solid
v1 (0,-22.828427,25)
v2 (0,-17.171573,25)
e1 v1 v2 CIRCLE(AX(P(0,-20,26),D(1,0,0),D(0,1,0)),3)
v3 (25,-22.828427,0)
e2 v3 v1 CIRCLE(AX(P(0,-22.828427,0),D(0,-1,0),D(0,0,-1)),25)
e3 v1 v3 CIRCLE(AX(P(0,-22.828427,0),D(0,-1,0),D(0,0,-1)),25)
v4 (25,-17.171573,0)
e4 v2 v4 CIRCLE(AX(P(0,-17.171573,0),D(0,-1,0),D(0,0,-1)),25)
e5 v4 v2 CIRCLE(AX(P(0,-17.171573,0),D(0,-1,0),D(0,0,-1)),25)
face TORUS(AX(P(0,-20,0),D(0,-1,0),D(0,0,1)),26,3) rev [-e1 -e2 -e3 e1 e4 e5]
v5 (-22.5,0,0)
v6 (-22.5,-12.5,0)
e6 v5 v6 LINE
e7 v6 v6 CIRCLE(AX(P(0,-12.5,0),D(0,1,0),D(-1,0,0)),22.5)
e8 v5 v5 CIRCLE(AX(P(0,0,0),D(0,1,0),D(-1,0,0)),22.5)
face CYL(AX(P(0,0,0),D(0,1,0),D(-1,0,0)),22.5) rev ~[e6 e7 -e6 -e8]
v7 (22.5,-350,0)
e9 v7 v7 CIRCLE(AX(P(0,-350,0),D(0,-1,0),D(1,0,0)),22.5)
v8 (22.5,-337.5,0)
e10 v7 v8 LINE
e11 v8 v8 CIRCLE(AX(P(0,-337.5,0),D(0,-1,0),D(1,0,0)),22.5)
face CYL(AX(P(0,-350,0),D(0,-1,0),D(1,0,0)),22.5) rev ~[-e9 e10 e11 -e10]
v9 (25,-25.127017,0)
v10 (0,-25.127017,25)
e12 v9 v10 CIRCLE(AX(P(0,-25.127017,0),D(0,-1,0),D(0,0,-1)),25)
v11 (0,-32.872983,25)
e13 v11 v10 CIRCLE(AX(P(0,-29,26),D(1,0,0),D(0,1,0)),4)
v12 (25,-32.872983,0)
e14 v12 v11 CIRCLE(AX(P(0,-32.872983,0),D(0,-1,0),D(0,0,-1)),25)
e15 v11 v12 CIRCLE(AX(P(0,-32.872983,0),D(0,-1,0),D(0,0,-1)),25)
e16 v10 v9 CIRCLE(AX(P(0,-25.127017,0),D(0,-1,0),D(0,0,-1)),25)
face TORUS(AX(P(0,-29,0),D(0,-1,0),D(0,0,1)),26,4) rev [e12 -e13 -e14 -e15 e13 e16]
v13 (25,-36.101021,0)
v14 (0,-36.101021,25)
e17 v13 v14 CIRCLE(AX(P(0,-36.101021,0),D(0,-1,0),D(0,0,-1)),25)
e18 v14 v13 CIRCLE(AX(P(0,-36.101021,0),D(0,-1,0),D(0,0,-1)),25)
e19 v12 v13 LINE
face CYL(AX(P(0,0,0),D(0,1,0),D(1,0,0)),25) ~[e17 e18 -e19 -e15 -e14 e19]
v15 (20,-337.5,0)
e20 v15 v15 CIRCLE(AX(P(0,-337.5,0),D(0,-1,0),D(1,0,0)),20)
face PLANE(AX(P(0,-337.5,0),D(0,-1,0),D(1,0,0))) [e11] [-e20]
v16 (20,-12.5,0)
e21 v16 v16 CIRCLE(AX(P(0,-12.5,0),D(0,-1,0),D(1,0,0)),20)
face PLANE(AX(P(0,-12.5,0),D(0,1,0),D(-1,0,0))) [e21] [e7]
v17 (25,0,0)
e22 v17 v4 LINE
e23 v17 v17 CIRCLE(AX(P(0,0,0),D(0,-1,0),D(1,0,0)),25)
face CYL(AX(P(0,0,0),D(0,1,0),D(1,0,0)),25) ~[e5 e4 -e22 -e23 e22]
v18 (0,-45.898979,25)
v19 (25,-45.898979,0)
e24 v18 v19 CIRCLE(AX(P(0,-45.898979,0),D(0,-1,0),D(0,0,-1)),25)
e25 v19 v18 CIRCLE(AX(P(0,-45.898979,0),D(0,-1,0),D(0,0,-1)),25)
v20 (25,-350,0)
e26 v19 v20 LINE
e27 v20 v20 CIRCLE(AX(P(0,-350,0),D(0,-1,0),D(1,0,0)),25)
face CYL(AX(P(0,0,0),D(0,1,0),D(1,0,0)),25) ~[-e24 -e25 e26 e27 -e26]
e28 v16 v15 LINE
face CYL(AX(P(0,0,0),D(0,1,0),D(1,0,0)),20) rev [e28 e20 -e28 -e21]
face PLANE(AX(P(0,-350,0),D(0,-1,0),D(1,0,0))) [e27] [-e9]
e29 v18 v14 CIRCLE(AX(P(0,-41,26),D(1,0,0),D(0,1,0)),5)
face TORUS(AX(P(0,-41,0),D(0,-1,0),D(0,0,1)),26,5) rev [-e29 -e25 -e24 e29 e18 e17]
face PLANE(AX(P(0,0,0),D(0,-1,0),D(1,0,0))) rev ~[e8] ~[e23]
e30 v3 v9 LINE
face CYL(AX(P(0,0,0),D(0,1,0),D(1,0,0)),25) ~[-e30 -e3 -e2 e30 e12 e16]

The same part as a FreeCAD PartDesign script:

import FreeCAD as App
import Part
import Sketcher
from FreeCAD import Vector
Q = App.Units.Quantity

doc = App.newDocument("Part")
body = doc.addObject("PartDesign::Body", "Body")

sketch1 = body.newObject("Sketcher::SketchObject", "Sketch")
sketch1.AttachmentSupport = (doc.getObject("XZ_Plane"), [""])
sketch1.MapMode = "FlatFace"
sketch1.addGeometry([
    Part.Circle(Vector(0, 0, 0), Vector(0, 0, 1), 25),
    Part.Circle(Vector(0, 0, 0), Vector(0, 0, 1), 20),
], False)
sketch1.addConstraint([
    Sketcher.Constraint("Coincident", 0, 3, -1, 1),
    Sketcher.Constraint("Coincident", 1, 3, -1, 1),
    Sketcher.Constraint("Diameter", 0, Q("50 mm")),
    Sketcher.Constraint("Diameter", 1, Q("40 mm")),
])
pad1 = body.newObject("PartDesign::Pad", "Pad")
pad1.Profile = sketch1
pad1.Length = 350

sketch2 = body.newObject("Sketcher::SketchObject", "Sketch001")
sketch2.AttachmentSupport = (doc.getObject("XZ_Plane"), [""])
sketch2.MapMode = "FlatFace"
sketch2.AttachmentOffset = App.Placement(Vector(0, 0, 350), App.Rotation())
sketch2.addGeometry([
    Part.Circle(Vector(0, 0, 0), Vector(0, 0, 1), 22),
    Part.Circle(Vector(0, 0, 0), Vector(0, 0, 1), 20),
], False)
sketch2.addConstraint([
    Sketcher.Constraint("Coincident", 0, 3, -1, 1),
    Sketcher.Constraint("Coincident", 1, 3, -1, 1),
    Sketcher.Constraint("Diameter", 0, Q("45 mm")),
    Sketcher.Constraint("Diameter", 1, Q("40 mm")),
])
pocket1 = body.newObject("PartDesign::Pocket", "Pocket")
pocket1.Profile = sketch2
pocket1.Length = 12.5

sketch3 = body.newObject("Sketcher::SketchObject", "Sketch002")
sketch3.AttachmentSupport = (doc.getObject("XZ_Plane"), [""])
sketch3.MapMode = "FlatFace"
sketch3.addGeometry([
    Part.Circle(Vector(0, 0, 0), Vector(0, 0, 1), 22),
    Part.Circle(Vector(0, 0, 0), Vector(0, 0, 1), 20),
], False)
sketch3.addConstraint([
    Sketcher.Constraint("Coincident", 0, 3, -1, 1),
    Sketcher.Constraint("Coincident", 1, 3, -1, 1),
    Sketcher.Constraint("Diameter", 0, Q("45 mm")),
    Sketcher.Constraint("Diameter", 1, Q("40 mm")),
])
pocket2 = body.newObject("PartDesign::Pocket", "Pocket001")
pocket2.Profile = sketch3
pocket2.Length = 12.5
pocket2.Reversed = True

sketch4 = body.newObject("Sketcher::SketchObject", "Sketch003")
sketch4.AttachmentSupport = (doc.getObject("YZ_Plane"), [""])
sketch4.MapMode = "FlatFace"
sketch4.addGeometry([
    Part.Circle(Vector(-20, 26, 0), Vector(0, 0, 1), 3),
    Part.Circle(Vector(-29, 26, 0), Vector(0, 0, 1), 4),
    Part.Circle(Vector(-41, 26, 0), Vector(0, 0, 1), 5),
], False)
sketch4.addConstraint([
    Sketcher.Constraint("Horizontal", 0, 3, 1, 3),
    Sketcher.Constraint("Horizontal", 1, 3, 2, 3),
    Sketcher.Constraint("Diameter", 0, Q("6 mm")),
    Sketcher.Constraint("Diameter", 1, Q("8 mm")),
    Sketcher.Constraint("Diameter", 2, Q("10 mm")),
    Sketcher.Constraint("DistanceX", 0, 3, -1, 1, Q("20 mm")),
    Sketcher.Constraint("DistanceY", -1, 1, 0, 3, Q("26 mm")),
    Sketcher.Constraint("DistanceX", 1, 3, -1, 1, Q("29 mm")),
    Sketcher.Constraint("DistanceX", 2, 3, -1, 1, Q("41 mm")),
])
groove = body.newObject("PartDesign::Groove", "Groove")
groove.Profile = sketch4
groove.ReferenceAxis = (sketch4, ["H_Axis"])
groove.Angle = 360

doc.recompute()
